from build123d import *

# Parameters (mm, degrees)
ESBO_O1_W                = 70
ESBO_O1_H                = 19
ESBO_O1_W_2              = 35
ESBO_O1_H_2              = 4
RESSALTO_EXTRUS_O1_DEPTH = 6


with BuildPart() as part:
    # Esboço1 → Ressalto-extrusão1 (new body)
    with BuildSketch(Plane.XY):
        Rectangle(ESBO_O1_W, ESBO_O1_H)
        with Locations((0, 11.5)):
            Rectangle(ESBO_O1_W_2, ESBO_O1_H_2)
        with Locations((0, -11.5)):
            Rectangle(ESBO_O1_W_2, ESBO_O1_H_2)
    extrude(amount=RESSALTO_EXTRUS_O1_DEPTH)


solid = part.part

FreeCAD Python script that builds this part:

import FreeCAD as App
import Part
import Sketcher

doc = App.newDocument("Part")
body = doc.addObject("PartDesign::Body", "Body")

# Sketch on XY plane
sketch1 = doc.addObject("Sketcher::SketchObject", "Sketch")
body.addObject(sketch1)
sketch1.AttachmentSupport = (doc.XY_Plane, [""])
sketch1.MapMode = "FlatFace"
sketch1.addGeometry(Part.LineSegment(App.Vector(-35, 9.5, 0), App.Vector(-35, -9.5, 0)), False)
sketch1.addGeometry(Part.LineSegment(App.Vector(-35, -9.5, 0), App.Vector(-17.5, -9.5, 0)), False)
sketch1.addGeometry(Part.LineSegment(App.Vector(-17.5, -9.5, 0), App.Vector(-17.5, -13.5, 0)), False)
sketch1.addGeometry(Part.LineSegment(App.Vector(-17.5, -13.5, 0), App.Vector(17.5, -13.5, 0)), False)
sketch1.addGeometry(Part.LineSegment(App.Vector(17.5, -13.5, 0), App.Vector(17.5, -9.5, 0)), False)
sketch1.addGeometry(Part.LineSegment(App.Vector(17.5, -9.5, 0), App.Vector(35, -9.5, 0)), False)
sketch1.addGeometry(Part.LineSegment(App.Vector(35, -9.5, 0), App.Vector(35, 9.5, 0)), False)
sketch1.addGeometry(Part.LineSegment(App.Vector(35, 9.5, 0), App.Vector(17.5, 9.5, 0)), False)
sketch1.addGeometry(Part.LineSegment(App.Vector(17.5, 9.5, 0), App.Vector(17.5, 13.5, 0)), False)
sketch1.addGeometry(Part.LineSegment(App.Vector(17.5, 13.5, 0), App.Vector(-17.5, 13.5, 0)), False)
sketch1.addGeometry(Part.LineSegment(App.Vector(-17.5, 13.5, 0), App.Vector(-17.5, 9.5, 0)), False)
sketch1.addGeometry(Part.LineSegment(App.Vector(-17.5, 9.5, 0), App.Vector(-35, 9.5, 0)), False)
sketch1.addConstraint(Sketcher.Constraint("Coincident", 0, 2, 1, 1))
sketch1.addConstraint(Sketcher.Constraint("Coincident", 1, 2, 2, 1))
sketch1.addConstraint(Sketcher.Constraint("Coincident", 2, 2, 3, 1))
sketch1.addConstraint(Sketcher.Constraint("Coincident", 3, 2, 4, 1))
sketch1.addConstraint(Sketcher.Constraint("Coincident", 4, 2, 5, 1))
sketch1.addConstraint(Sketcher.Constraint("Coincident", 5, 2, 6, 1))
sketch1.addConstraint(Sketcher.Constraint("Coincident", 6, 2, 7, 1))
sketch1.addConstraint(Sketcher.Constraint("Coincident", 7, 2, 8, 1))
sketch1.addConstraint(Sketcher.Constraint("Coincident", 8, 2, 9, 1))
sketch1.addConstraint(Sketcher.Constraint("Coincident", 9, 2, 10, 1))
sketch1.addConstraint(Sketcher.Constraint("Coincident", 10, 2, 11, 1))
sketch1.addConstraint(Sketcher.Constraint("Coincident", 11, 2, 0, 1))
sketch1.addConstraint(Sketcher.Constraint("Vertical", 0))
sketch1.addConstraint(Sketcher.Constraint("Horizontal", 1))
sketch1.addConstraint(Sketcher.Constraint("Vertical", 2))
sketch1.addConstraint(Sketcher.Constraint("Horizontal", 3))
sketch1.addConstraint(Sketcher.Constraint("Vertical", 4))
sketch1.addConstraint(Sketcher.Constraint("Horizontal", 5))
sketch1.addConstraint(Sketcher.Constraint("Vertical", 6))
sketch1.addConstraint(Sketcher.Constraint("Horizontal", 7))
sketch1.addConstraint(Sketcher.Constraint("Vertical", 8))
sketch1.addConstraint(Sketcher.Constraint("Horizontal", 9))
sketch1.addConstraint(Sketcher.Constraint("Vertical", 10))
sketch1.addConstraint(Sketcher.Constraint("Horizontal", 11))
sketch1.addConstraint(Sketcher.Constraint("Symmetric", 0, 2, 6, 2, -1, 1))
sketch1.addConstraint(Sketcher.Constraint("Symmetric", 2, 2, 8, 2, -1, 1))
sketch1.addConstraint(Sketcher.Constraint("Symmetric", 4, 2, 10, 2, -1, 1))
sketch1.addConstraint(Sketcher.Constraint("Symmetric", 1, 2, 4, 2, -2))
sketch1.addConstraint(Sketcher.Constraint("DistanceX", 3, 1, 3, 2, 35.0))
sketch1.addConstraint(Sketcher.Constraint("DistanceY", 0, 2, 0, 1, 19.0))
sketch1.addConstraint(Sketcher.Constraint("DistanceY", 2, 2, 2, 1, 4.0))
sketch1.addConstraint(Sketcher.Constraint("DistanceX", 1, 1, 1, 2, 17.5))
pad1 = doc.addObject("PartDesign::Pad", "Pad")
body.addObject(pad1)
pad1.Profile = sketch1
pad1.Length = 6

doc.recompute()
